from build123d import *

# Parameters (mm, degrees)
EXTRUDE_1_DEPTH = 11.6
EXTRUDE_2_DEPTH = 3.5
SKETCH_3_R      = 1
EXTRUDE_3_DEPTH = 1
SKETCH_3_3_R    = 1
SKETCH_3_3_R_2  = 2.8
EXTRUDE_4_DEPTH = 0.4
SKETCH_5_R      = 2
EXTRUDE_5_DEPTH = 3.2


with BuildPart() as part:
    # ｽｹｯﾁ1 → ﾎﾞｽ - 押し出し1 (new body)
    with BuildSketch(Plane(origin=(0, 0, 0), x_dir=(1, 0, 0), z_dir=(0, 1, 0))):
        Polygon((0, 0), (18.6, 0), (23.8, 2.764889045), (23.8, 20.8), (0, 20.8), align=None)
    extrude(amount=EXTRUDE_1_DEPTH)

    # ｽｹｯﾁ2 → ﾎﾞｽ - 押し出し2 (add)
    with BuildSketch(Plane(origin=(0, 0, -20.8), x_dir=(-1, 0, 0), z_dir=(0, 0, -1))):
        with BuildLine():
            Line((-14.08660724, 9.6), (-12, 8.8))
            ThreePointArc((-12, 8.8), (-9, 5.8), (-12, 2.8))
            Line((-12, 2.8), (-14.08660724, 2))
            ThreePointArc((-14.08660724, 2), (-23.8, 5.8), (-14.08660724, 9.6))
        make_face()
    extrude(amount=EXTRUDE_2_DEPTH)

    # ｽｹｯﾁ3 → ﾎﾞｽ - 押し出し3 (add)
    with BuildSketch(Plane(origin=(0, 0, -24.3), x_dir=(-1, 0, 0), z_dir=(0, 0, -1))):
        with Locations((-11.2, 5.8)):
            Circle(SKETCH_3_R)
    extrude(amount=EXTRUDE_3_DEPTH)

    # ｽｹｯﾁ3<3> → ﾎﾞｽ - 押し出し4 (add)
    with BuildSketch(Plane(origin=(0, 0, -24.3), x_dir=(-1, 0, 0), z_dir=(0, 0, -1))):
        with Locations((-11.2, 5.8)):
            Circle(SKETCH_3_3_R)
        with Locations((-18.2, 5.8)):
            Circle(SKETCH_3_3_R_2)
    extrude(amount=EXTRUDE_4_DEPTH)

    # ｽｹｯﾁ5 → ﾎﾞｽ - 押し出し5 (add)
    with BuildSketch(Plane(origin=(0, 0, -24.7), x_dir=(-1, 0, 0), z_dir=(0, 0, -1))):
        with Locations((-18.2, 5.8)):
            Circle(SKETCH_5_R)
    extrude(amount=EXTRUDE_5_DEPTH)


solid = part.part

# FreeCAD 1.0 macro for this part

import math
import FreeCAD as App
import Part
import Sketcher
Q = App.Units.Quantity

doc = App.newDocument("Part")
body = doc.addObject("PartDesign::Body", "Body")

# Sketch on XZ plane
sketch1 = body.newObject("Sketcher::SketchObject", "Sketch")
sketch1.AttachmentSupport = (doc.getObject("XZ_Plane"), [""])
sketch1.MapMode = "FlatFace"
sketch1.addGeometry(Part.LineSegment(App.Vector(0, 0, 0), App.Vector(19, 0, 0)), False)
sketch1.addGeometry(Part.LineSegment(App.Vector(19, 0, 0), App.Vector(24, -3, 0)), False)
sketch1.addGeometry(Part.LineSegment(App.Vector(24, -3, 0), App.Vector(24, -21, 0)), False)
sketch1.addGeometry(Part.LineSegment(App.Vector(24, -21, 0), App.Vector(0, -21, 0)), False)
sketch1.addGeometry(Part.LineSegment(App.Vector(0, -21, 0), App.Vector(0, 0, 0)), False)
sketch1.addConstraint(Sketcher.Constraint("Coincident", 0, 2, 1, 1))
sketch1.addConstraint(Sketcher.Constraint("Coincident", 1, 2, 2, 1))
sketch1.addConstraint(Sketcher.Constraint("Coincident", 2, 2, 3, 1))
sketch1.addConstraint(Sketcher.Constraint("Coincident", 3, 2, 4, 1))
sketch1.addConstraint(Sketcher.Constraint("Coincident", 4, 2, 0, 1))
sketch1.addConstraint(Sketcher.Constraint("Horizontal", 0))
sketch1.addConstraint(Sketcher.Constraint("Vertical", 2))
sketch1.addConstraint(Sketcher.Constraint("Horizontal", 3))
sketch1.addConstraint(Sketcher.Constraint("Vertical", 4))
sketch1.addConstraint(Sketcher.Constraint("Coincident", 4, 2, -1, 1))
sketch1.addConstraint(Sketcher.Constraint("Angle", 1, Q("-28 deg")))
sketch1.addConstraint(Sketcher.Constraint("DistanceX", 0, 1, 0, 2, 18.6))
sketch1.addConstraint(Sketcher.Constraint("DistanceX", 3, 2, 3, 1, 23.8))
sketch1.addConstraint(Sketcher.Constraint("DistanceY", 4, 1, 4, 2, 20.8))
pad1 = body.newObject("PartDesign::Pad", "Pad")
pad1.Profile = sketch1
pad1.Length = 11.6
pad1.Reversed = True

# Sketch on XY plane
sketch2 = body.newObject("Sketcher::SketchObject", "Sketch001")
sketch2.AttachmentSupport = (doc.getObject("XY_Plane"), [""])
sketch2.MapMode = "FlatFace"
sketch2.AttachmentOffset = App.Placement(App.Vector(0, 0, -20.8), App.Rotation())
sketch2.addGeometry(Part.LineSegment(App.Vector(12, 8.8, 0), App.Vector(14.1, 9.6, 0)), False)
sketch2.addGeometry(Part.ArcOfCircle(Part.Circle(App.Vector(18.2, 5.8, 0), App.Vector(0, 0, 1), 5.6), math.radians(-137), math.radians(137)), False)
sketch2.addGeometry(Part.LineSegment(App.Vector(14.1, 2, 0), App.Vector(12, 2.8, 0)), False)
sketch2.addGeometry(Part.ArcOfCircle(Part.Circle(App.Vector(12, 5.8, 0), App.Vector(0, 0, 1), 3), math.radians(90), math.radians(270)), False)
sketch2.addConstraint(Sketcher.Constraint("Coincident", 0, 2, 1, 2))
sketch2.addConstraint(Sketcher.Constraint("Coincident", 1, 1, 2, 1))
sketch2.addConstraint(Sketcher.Constraint("Coincident", 2, 2, 3, 2))
sketch2.addConstraint(Sketcher.Constraint("Coincident", 3, 1, 0, 1))
sketch2.addConstraint(Sketcher.Constraint("Horizontal", 1, 3, 3, 3))
sketch2.addConstraint(Sketcher.Constraint("Vertical", 0, 2, 1, 1))
sketch2.addConstraint(Sketcher.Constraint("Vertical", 3, 3, 2, 2))
sketch2.addConstraint(Sketcher.Constraint("Vertical", 2, 2, 3, 1))
sketch2.addConstraint(Sketcher.Constraint("Radius", 3, 3.0))
sketch2.addConstraint(Sketcher.Constraint("Radius", 1, 5.6))
sketch2.addConstraint(Sketcher.Constraint("DistanceX", -1, 1, 3, 3, 12.0))
sketch2.addConstraint(Sketcher.Constraint("DistanceY", -1, 1, 1, 1, 2.0))
sketch2.addConstraint(Sketcher.Constraint("DistanceX", -1, 1, 1, 3, 18.2))
sketch2.addConstraint(Sketcher.Constraint("DistanceY", -1, 1, 1, 3, 5.8))
pad2 = body.newObject("PartDesign::Pad", "Pad001")
pad2.Profile = sketch2
pad2.Length = 3.5
pad2.Reversed = True

# Sketch on XY plane
sketch3 = body.newObject("Sketcher::SketchObject", "Sketch002")
sketch3.AttachmentSupport = (doc.getObject("XY_Plane"), [""])
sketch3.MapMode = "FlatFace"
sketch3.AttachmentOffset = App.Placement(App.Vector(0, 0, -24.3), App.Rotation())
sketch3.addGeometry(Part.Circle(App.Vector(11.2, 5.8, 0), App.Vector(0, 0, 1), 1), False)
sketch3.addConstraint(Sketcher.Constraint("Diameter", 0, 2.0))
sketch3.addConstraint(Sketcher.Constraint("DistanceX", -1, 1, 0, 3, 11.2))
sketch3.addConstraint(Sketcher.Constraint("DistanceY", -1, 1, 0, 3, 5.8))
pad3 = body.newObject("PartDesign::Pad", "Pad002")
pad3.Profile = sketch3
pad3.Length = 1
pad3.Reversed = True

# Sketch on XY plane
sketch4 = body.newObject("Sketcher::SketchObject", "Sketch003")
sketch4.AttachmentSupport = (doc.getObject("XY_Plane"), [""])
sketch4.MapMode = "FlatFace"
sketch4.AttachmentOffset = App.Placement(App.Vector(0, 0, -24.3), App.Rotation())
sketch4.addGeometry(Part.Circle(App.Vector(11.2, 5.8, 0), App.Vector(0, 0, 1), 1), False)
sketch4.addGeometry(Part.Circle(App.Vector(18.2, 5.8, 0), App.Vector(0, 0, 1), 2.8), False)
sketch4.addConstraint(Sketcher.Constraint("Horizontal", 0, 3, 1, 3))
sketch4.addConstraint(Sketcher.Constraint("Diameter", 0, 2.0))
sketch4.addConstraint(Sketcher.Constraint("Diameter", 1, 5.6))
sketch4.addConstraint(Sketcher.Constraint("DistanceX", 0, 3, 1, 3, 7.0))
sketch4.addConstraint(Sketcher.Constraint("DistanceX", -1, 1, 0, 3, 11.2))
sketch4.addConstraint(Sketcher.Constraint("DistanceY", -1, 1, 0, 3, 5.8))
pad4 = body.newObject("PartDesign::Pad", "Pad003")
pad4.Profile = sketch4
pad4.Length = 0.4
pad4.Reversed = True

# Sketch on XY plane
sketch5 = body.newObject("Sketcher::SketchObject", "Sketch004")
sketch5.AttachmentSupport = (doc.getObject("XY_Plane"), [""])
sketch5.MapMode = "FlatFace"
sketch5.AttachmentOffset = App.Placement(App.Vector(0, 0, -24.7), App.Rotation())
sketch5.addGeometry(Part.Circle(App.Vector(18.2, 5.8, 0), App.Vector(0, 0, 1), 2), False)
sketch5.addConstraint(Sketcher.Constraint("Diameter", 0, 4.0))
sketch5.addConstraint(Sketcher.Constraint("DistanceX", -1, 1, 0, 3, 18.2))
sketch5.addConstraint(Sketcher.Constraint("DistanceY", -1, 1, 0, 3, 5.8))
pad5 = body.newObject("PartDesign::Pad", "Pad004")
pad5.Profile = sketch5
pad5.Length = 3.2
pad5.Reversed = True

doc.recompute()
